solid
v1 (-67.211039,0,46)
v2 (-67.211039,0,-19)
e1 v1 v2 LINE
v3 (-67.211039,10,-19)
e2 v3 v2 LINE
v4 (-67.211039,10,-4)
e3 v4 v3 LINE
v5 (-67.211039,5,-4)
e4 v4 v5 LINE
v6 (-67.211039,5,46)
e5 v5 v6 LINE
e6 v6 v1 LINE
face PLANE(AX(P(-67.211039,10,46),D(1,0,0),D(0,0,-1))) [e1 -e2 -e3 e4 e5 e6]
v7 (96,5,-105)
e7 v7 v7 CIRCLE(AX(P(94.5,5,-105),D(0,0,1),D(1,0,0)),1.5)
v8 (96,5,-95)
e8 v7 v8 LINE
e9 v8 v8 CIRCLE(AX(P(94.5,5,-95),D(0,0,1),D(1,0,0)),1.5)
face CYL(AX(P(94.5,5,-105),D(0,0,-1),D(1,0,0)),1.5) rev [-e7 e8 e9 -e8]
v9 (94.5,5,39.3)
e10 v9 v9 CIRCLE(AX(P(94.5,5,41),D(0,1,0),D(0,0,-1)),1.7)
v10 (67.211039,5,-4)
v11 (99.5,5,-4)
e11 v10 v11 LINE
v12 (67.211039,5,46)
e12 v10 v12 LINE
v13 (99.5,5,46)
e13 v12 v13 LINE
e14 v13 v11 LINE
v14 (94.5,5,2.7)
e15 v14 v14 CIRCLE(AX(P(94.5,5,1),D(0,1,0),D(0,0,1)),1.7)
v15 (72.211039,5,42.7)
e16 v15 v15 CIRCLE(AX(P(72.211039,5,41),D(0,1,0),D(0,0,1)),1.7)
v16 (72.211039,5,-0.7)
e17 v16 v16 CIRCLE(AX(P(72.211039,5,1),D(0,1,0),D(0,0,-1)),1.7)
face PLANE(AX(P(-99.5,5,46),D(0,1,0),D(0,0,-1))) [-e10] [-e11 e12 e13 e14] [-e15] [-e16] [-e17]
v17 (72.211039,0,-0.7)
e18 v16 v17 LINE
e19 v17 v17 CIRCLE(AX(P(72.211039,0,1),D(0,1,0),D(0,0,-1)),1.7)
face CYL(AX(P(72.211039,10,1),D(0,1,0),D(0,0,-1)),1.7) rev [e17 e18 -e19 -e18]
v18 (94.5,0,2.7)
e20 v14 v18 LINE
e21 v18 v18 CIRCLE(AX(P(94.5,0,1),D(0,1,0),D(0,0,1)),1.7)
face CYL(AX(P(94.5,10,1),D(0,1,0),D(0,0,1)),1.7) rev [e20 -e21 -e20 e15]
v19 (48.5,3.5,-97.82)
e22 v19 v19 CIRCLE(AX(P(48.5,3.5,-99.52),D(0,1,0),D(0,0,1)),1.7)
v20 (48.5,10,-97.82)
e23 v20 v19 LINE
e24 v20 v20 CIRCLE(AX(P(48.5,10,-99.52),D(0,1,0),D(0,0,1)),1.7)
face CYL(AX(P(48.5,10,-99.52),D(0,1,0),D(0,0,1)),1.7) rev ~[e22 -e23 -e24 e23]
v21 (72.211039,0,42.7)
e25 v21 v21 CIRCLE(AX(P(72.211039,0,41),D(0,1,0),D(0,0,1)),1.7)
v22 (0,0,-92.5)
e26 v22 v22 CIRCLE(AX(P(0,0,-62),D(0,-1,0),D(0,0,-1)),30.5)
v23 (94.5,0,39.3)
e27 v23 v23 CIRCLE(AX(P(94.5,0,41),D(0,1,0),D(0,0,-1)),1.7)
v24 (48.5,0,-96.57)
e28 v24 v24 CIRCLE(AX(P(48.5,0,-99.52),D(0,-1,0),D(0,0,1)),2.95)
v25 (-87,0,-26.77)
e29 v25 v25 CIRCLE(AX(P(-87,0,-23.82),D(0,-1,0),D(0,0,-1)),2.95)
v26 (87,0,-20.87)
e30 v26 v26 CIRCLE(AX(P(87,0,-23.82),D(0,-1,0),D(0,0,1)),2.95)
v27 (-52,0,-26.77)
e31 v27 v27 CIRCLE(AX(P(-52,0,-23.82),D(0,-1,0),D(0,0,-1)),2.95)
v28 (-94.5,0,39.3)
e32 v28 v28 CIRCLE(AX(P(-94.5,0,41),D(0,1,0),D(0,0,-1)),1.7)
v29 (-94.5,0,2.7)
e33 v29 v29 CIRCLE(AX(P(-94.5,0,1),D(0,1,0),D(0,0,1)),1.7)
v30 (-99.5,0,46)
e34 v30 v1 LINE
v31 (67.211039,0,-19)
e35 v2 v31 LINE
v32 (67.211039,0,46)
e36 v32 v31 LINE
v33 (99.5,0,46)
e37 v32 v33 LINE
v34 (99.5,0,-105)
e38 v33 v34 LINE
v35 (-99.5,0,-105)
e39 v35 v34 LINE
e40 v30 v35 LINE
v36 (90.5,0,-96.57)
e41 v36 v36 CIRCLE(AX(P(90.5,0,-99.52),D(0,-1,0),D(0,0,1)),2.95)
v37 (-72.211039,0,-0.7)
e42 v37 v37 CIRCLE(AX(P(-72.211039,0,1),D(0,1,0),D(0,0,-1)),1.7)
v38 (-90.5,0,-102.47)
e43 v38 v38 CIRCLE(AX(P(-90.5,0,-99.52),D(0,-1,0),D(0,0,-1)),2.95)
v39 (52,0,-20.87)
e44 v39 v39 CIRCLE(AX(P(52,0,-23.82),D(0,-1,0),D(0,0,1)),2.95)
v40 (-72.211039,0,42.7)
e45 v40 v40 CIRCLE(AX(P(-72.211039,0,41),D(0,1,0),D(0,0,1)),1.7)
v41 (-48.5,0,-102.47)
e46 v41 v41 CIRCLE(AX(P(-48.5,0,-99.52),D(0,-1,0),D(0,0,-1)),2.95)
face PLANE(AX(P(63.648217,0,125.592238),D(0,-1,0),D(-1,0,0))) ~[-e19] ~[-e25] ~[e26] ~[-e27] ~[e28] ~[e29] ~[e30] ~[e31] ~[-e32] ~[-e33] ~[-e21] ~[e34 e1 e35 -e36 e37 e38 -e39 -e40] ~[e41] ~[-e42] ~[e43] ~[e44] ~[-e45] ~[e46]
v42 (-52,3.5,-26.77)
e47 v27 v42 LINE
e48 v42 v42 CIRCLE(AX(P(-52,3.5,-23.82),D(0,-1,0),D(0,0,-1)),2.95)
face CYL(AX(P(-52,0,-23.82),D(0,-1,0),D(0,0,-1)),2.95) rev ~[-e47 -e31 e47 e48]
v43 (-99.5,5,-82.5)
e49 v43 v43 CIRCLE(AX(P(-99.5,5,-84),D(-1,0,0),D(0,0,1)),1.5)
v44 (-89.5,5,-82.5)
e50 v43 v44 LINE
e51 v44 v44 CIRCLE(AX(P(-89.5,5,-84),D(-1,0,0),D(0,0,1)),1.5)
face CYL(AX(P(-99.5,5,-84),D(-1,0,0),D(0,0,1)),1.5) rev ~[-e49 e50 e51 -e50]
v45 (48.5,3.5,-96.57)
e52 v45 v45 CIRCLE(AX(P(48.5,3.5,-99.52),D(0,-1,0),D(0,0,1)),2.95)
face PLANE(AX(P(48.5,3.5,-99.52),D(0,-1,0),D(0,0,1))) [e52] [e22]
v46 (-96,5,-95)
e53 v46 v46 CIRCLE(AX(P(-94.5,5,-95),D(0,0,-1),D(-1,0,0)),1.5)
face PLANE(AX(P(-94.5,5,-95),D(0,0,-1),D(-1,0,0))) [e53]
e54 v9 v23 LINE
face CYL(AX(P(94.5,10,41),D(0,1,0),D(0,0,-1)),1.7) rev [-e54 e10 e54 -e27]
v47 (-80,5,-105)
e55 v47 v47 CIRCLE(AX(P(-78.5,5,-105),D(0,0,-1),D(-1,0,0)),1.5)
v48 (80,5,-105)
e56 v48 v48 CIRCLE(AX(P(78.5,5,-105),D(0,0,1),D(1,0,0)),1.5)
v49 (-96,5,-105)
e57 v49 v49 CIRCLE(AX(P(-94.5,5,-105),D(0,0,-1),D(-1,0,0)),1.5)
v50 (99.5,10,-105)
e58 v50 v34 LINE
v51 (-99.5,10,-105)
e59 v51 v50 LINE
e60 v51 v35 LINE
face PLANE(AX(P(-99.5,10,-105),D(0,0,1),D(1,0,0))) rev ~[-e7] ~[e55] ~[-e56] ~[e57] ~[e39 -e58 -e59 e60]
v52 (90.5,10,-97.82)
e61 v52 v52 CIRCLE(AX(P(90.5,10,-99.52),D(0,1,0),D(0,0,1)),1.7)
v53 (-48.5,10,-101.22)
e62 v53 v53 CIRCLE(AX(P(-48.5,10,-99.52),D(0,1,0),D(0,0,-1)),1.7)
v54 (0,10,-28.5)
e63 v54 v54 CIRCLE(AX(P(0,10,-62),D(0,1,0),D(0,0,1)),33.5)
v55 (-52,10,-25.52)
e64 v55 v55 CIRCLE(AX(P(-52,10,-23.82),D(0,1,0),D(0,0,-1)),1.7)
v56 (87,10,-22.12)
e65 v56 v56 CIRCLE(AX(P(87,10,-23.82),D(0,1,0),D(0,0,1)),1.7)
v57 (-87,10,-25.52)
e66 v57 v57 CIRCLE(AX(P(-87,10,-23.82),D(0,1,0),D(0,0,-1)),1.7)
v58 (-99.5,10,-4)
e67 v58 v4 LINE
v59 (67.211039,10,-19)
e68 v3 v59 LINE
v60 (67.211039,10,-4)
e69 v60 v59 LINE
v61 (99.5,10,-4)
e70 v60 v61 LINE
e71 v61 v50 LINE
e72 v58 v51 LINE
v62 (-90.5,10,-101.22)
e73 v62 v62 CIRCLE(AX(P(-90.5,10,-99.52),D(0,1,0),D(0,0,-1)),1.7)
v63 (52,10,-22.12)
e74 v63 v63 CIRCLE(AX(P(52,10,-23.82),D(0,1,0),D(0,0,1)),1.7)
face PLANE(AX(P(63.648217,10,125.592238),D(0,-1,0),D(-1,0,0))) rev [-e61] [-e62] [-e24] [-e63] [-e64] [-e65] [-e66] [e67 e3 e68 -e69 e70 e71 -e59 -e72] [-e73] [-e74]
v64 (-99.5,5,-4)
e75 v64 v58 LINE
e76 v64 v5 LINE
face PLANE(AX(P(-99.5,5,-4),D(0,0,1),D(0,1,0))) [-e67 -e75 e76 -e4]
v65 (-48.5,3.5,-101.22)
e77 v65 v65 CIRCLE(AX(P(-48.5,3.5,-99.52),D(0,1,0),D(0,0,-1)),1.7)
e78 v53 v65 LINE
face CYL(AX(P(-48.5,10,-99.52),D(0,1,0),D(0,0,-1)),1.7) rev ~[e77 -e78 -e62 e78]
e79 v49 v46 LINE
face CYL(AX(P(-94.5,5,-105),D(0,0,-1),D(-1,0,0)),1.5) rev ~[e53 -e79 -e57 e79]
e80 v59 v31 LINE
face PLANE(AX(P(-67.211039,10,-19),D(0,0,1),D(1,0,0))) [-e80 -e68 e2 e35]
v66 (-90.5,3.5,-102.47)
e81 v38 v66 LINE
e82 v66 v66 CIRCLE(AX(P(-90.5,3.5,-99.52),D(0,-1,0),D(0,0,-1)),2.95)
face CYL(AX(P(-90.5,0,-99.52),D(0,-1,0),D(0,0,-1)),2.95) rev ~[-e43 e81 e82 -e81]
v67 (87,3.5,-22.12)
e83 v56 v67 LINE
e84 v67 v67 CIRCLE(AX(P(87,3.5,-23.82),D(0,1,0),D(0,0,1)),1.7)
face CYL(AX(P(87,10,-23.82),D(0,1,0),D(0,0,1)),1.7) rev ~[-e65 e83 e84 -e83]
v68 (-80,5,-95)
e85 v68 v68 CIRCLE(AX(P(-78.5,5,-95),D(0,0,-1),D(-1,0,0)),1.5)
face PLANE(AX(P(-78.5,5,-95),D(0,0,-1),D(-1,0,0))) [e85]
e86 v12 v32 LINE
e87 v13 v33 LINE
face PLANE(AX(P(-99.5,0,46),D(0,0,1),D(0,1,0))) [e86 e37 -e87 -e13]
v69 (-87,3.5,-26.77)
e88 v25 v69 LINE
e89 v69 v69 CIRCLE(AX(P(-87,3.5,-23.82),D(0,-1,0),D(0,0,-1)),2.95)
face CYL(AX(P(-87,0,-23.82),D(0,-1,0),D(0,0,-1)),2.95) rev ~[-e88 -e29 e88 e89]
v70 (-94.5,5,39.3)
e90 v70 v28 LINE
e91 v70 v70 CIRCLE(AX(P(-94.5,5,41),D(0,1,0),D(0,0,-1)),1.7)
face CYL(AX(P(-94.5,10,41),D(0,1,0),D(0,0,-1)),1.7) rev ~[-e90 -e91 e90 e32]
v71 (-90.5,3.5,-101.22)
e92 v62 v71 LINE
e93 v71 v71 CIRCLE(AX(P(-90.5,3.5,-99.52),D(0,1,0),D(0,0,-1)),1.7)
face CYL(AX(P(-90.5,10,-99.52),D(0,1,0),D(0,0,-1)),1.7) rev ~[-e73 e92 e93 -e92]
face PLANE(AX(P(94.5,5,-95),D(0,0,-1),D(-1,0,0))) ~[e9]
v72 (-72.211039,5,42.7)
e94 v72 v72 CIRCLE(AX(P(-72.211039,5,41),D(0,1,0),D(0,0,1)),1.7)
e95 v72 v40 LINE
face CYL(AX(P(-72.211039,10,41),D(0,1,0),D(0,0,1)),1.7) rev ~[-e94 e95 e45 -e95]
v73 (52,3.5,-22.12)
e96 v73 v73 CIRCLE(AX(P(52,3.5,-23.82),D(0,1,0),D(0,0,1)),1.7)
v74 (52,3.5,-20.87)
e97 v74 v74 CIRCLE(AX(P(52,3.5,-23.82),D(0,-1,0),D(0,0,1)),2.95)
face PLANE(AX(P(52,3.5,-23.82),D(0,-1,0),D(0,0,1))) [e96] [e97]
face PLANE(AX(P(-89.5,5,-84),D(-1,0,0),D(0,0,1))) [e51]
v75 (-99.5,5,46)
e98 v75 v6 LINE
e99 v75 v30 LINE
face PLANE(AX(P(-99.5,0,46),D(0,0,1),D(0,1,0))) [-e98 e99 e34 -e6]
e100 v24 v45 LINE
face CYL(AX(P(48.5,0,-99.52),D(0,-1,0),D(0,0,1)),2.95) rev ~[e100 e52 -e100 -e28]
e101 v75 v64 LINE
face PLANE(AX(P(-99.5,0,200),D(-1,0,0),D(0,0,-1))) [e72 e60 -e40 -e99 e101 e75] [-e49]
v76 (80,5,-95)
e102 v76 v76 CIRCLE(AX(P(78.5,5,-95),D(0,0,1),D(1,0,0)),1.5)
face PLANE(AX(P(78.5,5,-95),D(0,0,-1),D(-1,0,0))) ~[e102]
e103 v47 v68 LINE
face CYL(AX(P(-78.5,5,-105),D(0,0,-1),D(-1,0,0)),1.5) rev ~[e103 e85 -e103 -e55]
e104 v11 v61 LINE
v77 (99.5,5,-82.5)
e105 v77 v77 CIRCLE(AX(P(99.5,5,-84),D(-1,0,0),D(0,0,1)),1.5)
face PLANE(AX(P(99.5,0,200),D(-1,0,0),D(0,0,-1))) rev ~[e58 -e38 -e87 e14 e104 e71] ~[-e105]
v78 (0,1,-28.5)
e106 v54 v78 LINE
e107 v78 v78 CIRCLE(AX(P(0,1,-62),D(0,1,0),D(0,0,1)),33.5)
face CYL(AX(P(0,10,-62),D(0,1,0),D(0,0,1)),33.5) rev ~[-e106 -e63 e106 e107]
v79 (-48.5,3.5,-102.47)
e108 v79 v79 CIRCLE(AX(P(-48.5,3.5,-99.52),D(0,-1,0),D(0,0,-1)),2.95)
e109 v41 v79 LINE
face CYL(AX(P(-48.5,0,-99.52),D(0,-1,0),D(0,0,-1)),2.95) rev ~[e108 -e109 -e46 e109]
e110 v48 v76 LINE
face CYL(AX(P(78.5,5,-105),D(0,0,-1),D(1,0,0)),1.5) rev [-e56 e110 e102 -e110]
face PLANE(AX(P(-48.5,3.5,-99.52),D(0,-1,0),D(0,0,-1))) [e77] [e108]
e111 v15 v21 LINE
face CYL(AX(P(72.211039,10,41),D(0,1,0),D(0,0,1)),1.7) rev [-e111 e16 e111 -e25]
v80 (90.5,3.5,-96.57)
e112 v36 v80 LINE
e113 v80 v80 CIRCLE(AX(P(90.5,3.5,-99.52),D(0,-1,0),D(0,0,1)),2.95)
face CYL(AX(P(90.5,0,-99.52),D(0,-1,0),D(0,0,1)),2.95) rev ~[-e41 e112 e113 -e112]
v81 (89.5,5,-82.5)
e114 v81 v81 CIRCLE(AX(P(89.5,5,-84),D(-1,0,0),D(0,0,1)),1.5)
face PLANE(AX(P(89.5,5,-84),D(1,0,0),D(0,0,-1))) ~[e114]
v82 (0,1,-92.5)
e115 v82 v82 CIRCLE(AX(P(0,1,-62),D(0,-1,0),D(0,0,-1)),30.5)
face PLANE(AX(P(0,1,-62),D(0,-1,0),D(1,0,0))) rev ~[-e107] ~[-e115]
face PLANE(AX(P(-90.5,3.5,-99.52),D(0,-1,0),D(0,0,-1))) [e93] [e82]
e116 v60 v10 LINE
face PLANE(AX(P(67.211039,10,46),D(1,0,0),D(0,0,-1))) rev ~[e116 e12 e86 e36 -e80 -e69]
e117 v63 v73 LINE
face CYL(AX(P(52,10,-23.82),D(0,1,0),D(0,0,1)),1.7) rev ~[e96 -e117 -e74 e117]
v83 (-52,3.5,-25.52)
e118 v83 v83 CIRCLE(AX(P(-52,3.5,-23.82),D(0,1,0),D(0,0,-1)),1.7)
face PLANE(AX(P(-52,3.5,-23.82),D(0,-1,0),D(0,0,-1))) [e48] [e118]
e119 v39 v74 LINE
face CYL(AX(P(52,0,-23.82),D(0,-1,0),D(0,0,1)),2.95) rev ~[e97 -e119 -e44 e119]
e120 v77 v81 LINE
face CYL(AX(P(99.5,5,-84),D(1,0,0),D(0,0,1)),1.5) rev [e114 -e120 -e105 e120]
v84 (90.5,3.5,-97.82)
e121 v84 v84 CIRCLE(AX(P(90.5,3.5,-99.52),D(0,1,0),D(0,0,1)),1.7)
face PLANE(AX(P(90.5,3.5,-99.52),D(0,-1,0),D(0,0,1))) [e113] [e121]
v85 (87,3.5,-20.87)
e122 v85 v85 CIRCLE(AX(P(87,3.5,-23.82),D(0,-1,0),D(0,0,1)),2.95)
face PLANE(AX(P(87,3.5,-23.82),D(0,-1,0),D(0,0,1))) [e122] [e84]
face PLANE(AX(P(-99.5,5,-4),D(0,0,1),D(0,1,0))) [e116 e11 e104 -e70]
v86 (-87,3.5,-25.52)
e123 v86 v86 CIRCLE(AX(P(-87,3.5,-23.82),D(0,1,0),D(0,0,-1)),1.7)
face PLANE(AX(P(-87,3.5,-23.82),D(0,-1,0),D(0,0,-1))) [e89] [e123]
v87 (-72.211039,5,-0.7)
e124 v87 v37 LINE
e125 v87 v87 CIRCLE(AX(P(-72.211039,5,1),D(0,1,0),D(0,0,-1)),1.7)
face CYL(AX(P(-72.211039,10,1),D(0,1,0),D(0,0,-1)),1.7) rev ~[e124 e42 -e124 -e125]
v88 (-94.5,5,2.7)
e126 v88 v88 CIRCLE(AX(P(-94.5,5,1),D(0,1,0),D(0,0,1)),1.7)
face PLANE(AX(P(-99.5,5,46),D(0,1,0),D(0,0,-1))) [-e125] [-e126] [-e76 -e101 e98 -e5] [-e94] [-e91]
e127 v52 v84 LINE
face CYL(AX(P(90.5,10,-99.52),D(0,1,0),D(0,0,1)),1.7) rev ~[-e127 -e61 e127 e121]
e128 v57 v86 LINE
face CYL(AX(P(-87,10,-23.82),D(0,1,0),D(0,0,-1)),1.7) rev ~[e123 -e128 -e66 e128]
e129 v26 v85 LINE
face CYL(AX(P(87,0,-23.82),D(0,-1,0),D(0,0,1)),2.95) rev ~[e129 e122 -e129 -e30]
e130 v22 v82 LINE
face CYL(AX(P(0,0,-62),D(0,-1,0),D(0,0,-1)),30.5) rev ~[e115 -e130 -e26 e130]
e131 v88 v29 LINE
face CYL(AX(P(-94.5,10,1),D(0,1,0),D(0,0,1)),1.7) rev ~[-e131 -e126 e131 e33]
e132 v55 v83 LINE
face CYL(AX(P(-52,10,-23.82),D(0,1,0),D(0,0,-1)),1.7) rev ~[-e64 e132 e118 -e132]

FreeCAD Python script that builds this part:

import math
import FreeCAD as App
import Part
import Sketcher
from FreeCAD import Vector
Q = App.Units.Quantity


def add_polygon(sketch, points):
    """Adds a closed chain of lines whose ends are joined by coincident constraints."""
    first, n = sketch.GeometryCount, len(points)
    for a, b in zip(points, points[1:] + points[:1]):
        sketch.addGeometry(Part.LineSegment(App.Vector(*a, 0), App.Vector(*b, 0)), False)
    for i in range(n):
        sketch.addConstraint(Sketcher.Constraint("Coincident", first + i, 2, first + (i + 1) % n, 1))

doc = App.newDocument("Part")
body = doc.addObject("PartDesign::Body", "Body")

# Sketch on XZ plane
sketch1 = doc.addObject("Sketcher::SketchObject", "Sketch")
body.addObject(sketch1)
sketch1.AttachmentSupport = (doc.XZ_Plane, [""])
sketch1.MapMode = "FlatFace"
add_polygon(sketch1, [(-100, -200), (-100, 200), (100, 200), (100, -200)])  # lines 0-3
sketch1.addConstraint([
    Sketcher.Constraint("Vertical", 0),
    Sketcher.Constraint("Horizontal", 1),
    Sketcher.Constraint("Vertical", 2),
    Sketcher.Constraint("Horizontal", 3),
    Sketcher.Constraint("Symmetric", 0, 2, 2, 2, -1, 1),
    Sketcher.Constraint("DistanceX", 1, 1, 1, 2, 199.0),
    Sketcher.Constraint("DistanceY", 0, 1, 0, 2, 400.0),
])
pad1 = doc.addObject("PartDesign::Pad", "Pad")
body.addObject(pad1)
pad1.Profile = sketch1
pad1.Length = 10
pad1.Reversed = True

# Sketch on XZ plane
sketch2 = doc.addObject("Sketcher::SketchObject", "Sketch001")
body.addObject(sketch2)
sketch2.AttachmentSupport = (doc.XZ_Plane, [""])
sketch2.MapMode = "FlatFace"
sketch2.AttachmentOffset = App.Placement(Vector(0, 0, -10), App.Rotation())
add_polygon(sketch2, [(18, 200), (100, 200), (100, 46)])  # lines 0-2
add_polygon(sketch2, [(-18, 200), (-100, 46), (-100, 200)])  # lines 3-5
add_polygon(sketch2, [(-100, -200), (-100, -105), (100, -105), (100, -200)])  # lines 6-9
add_polygon(sketch2, [(67, 46), (-67, 46), (-3, 168), (3, 168)])  # lines 10-13
sketch2.addConstraint([
    Sketcher.Constraint("Horizontal", 0),
    Sketcher.Constraint("Vertical", 1),
    Sketcher.Constraint("Vertical", 4),
    Sketcher.Constraint("Horizontal", 5),
    Sketcher.Constraint("Vertical", 6),
    Sketcher.Constraint("Horizontal", 7),
    Sketcher.Constraint("Vertical", 8),
    Sketcher.Constraint("Horizontal", 9),
    Sketcher.Constraint("Horizontal", 10),
    Sketcher.Constraint("Horizontal", 12),
    Sketcher.Constraint("Symmetric", 4, 2, 8, 2, -1, 1),
    Sketcher.Constraint("Symmetric", 0, 2, 9, 2, -1, 1),
    Sketcher.Constraint("Symmetric", 1, 2, 3, 2, -2),
    Sketcher.Constraint("Parallel", 3, 11),
    Sketcher.Constraint("Parallel", 2, 13),
    Sketcher.Constraint("Horizontal", 3, 2, 10, 2),
    Sketcher.Constraint("Equal", 0, 5),
    Sketcher.Constraint("DistanceX", 7, 1, 7, 2, 199.0),
    Sketcher.Constraint("DistanceY", 1, 2, 1, 1, 154.0),
    Sketcher.Constraint("DistanceY", 6, 1, 6, 2, 95.0),
    Sketcher.Constraint("DistanceX", 0, 1, 0, 2, 81.5),
    Sketcher.Constraint("DistanceY", -1, 1, 0, 2, 200.0),
    Sketcher.Constraint("DistanceY", -1, 1, 11, 2, 168.0),
    Sketcher.Constraint("DistanceX", 10, 2, 10, 1, 134.422078),
    Sketcher.Constraint("DistanceX", 10, 2, -1, 1, 67.211039),
])
pocket1 = doc.addObject("PartDesign::Pocket", "Pocket")
body.addObject(pocket1)
pocket1.Profile = sketch2
pocket1.Length = 10
pocket1.Reversed = True

# Sketch on XZ plane
sketch3 = doc.addObject("Sketcher::SketchObject", "Sketch002")
body.addObject(sketch3)
sketch3.AttachmentSupport = (doc.XZ_Plane, [""])
sketch3.MapMode = "FlatFace"
sketch3.AttachmentOffset = App.Placement(Vector(0, 0, -10), App.Rotation())
sketch3.addGeometry([
    Part.Circle(Vector(-11, 195, 0), Vector(0, 0, 1), 1.7),
    Part.Circle(Vector(-11, 178.2, 0), Vector(0, 0, 1), 1.7),
    Part.Circle(Vector(11, 195, 0), Vector(0, 0, 1), 1.7),
    Part.Circle(Vector(11, 178.2, 0), Vector(0, 0, 1), 1.7),
], False)
sketch3.addConstraint([
    Sketcher.Constraint("Equal", 0, 1),
    Sketcher.Constraint("Equal", 1, 2),
    Sketcher.Constraint("Equal", 2, 3),
    Sketcher.Constraint("Symmetric", 0, 3, 2, 3, -2),
    Sketcher.Constraint("Symmetric", 1, 3, 3, 3, -2),
    Sketcher.Constraint("Vertical", 0, 3, 1, 3),
    Sketcher.Constraint("Diameter", 0, 3.4),
    Sketcher.Constraint("DistanceX", 0, 3, -1, 1, 11.0),
    Sketcher.Constraint("DistanceY", -1, 1, 0, 3, 195.0),
    Sketcher.Constraint("DistanceY", -1, 1, 1, 3, 178.18),
])
pocket2 = doc.addObject("PartDesign::Pocket", "Pocket001")
body.addObject(pocket2)
pocket2.Profile = sketch3
pocket2.Type = "ThroughAll"
pocket2.Reversed = True

# Sketch on XZ plane
sketch4 = doc.addObject("Sketcher::SketchObject", "Sketch003")
body.addObject(sketch4)
sketch4.AttachmentSupport = (doc.XZ_Plane, [""])
sketch4.MapMode = "FlatFace"
add_polygon(sketch4, [(-8.1, 196.7), (-11, 198.4), (-13.9, 196.7), (-13.9, 193.3), (-11, 191.6), (-8.1, 193.3)])  # lines 0-5
add_polygon(sketch4, [(11, 198.4), (8.1, 196.7), (8.1, 193.3), (11, 191.6), (13.9, 193.3), (13.9, 196.7)])  # lines 6-11
add_polygon(sketch4, [(-8.1, 176.5), (-8.1, 179.9), (-11, 181.6), (-13.9, 179.9), (-13.9, 176.5), (-11, 174.8)])  # lines 12-17
add_polygon(sketch4, [(8.1, 179.9), (8.1, 176.5), (11, 174.8), (13.9, 176.5), (13.9, 179.9), (11, 181.6)])  # lines 18-23
sketch4.addConstraint([
    Sketcher.Constraint("Vertical", 2),
    Sketcher.Constraint("Vertical", 5),
    Sketcher.Constraint("Vertical", 7),
    Sketcher.Constraint("Vertical", 10),
    Sketcher.Constraint("Vertical", 12),
    Sketcher.Constraint("Vertical", 15),
    Sketcher.Constraint("Vertical", 18),
    Sketcher.Constraint("Vertical", 21),
    Sketcher.Constraint("Symmetric", 5, 2, 6, 2, -2),
    Sketcher.Constraint("Symmetric", 3, 2, 8, 2, -2),
    Sketcher.Constraint("Symmetric", 2, 2, 9, 2, -2),
    Sketcher.Constraint("Symmetric", 0, 2, 11, 2, -2),
    Sketcher.Constraint("Symmetric", 17, 2, 18, 2, -2),
    Sketcher.Constraint("Symmetric", 16, 2, 19, 2, -2),
    Sketcher.Constraint("Symmetric", 15, 2, 20, 2, -2),
    Sketcher.Constraint("Symmetric", 13, 2, 22, 2, -2),
    Sketcher.Constraint("Parallel", 0, 3),
    Sketcher.Constraint("Parallel", 1, 4),
    Sketcher.Constraint("Parallel", 4, 6),
    Sketcher.Constraint("Parallel", 3, 8),
    Sketcher.Constraint("Parallel", 8, 11),
    Sketcher.Constraint("Parallel", 11, 13),
    Sketcher.Constraint("Parallel", 9, 14),
    Sketcher.Constraint("Parallel", 13, 16),
    Sketcher.Constraint("Parallel", 14, 17),
    Sketcher.Constraint("Parallel", 19, 22),
    Sketcher.Constraint("Parallel", 20, 23),
    Sketcher.Constraint("Horizontal", 2, 2, 4, 2),
    Sketcher.Constraint("Horizontal", 1, 2, 5, 2),
    Sketcher.Constraint("Horizontal", 12, 2, 14, 2),
    Sketcher.Constraint("Horizontal", 15, 2, 17, 2),
    Sketcher.Constraint("Vertical", 5, 2, 12, 2),
    Sketcher.Constraint("Vertical", 3, 2, 13, 2),
    Sketcher.Constraint("Equal", 10, 12),
    Sketcher.Constraint("Angle", 0, Q("150 deg")),
    Sketcher.Constraint("DistanceX", 0, 2, -1, 1, 11.0),
    Sketcher.Constraint("DistanceX", 2, 2, 4, 2, 5.9),
    Sketcher.Constraint("DistanceY", 12, 2, 5, 2, 16.82),
    Sketcher.Constraint("DistanceY", 2, 2, 2, 1, 3.406367),
    Sketcher.Constraint("DistanceY", -1, 1, 0, 2, 198.406367),
])
pocket3 = doc.addObject("PartDesign::Pocket", "Pocket002")
body.addObject(pocket3)
pocket3.Profile = sketch4
pocket3.Length = 4

# Sketch on XZ plane
sketch5 = doc.addObject("Sketcher::SketchObject", "Sketch004")
body.addObject(sketch5)
sketch5.AttachmentSupport = (doc.XZ_Plane, [""])
sketch5.MapMode = "FlatFace"
add_polygon(sketch5, [(-18, 190), (-18, 183), (18, 183), (18, 190)])  # lines 0-3
sketch5.addConstraint([
    Sketcher.Constraint("Vertical", 0),
    Sketcher.Constraint("Horizontal", 1),
    Sketcher.Constraint("Vertical", 2),
    Sketcher.Constraint("Horizontal", 3),
    Sketcher.Constraint("DistanceX", 1, 1, 1, 2, 35.0),
    Sketcher.Constraint("DistanceY", 0, 2, 0, 1, 7.0),
    Sketcher.Constraint("DistanceX", 0, 2, -1, 1, 17.5),
    Sketcher.Constraint("DistanceY", -1, 1, 0, 2, 183.09),
])
pocket4 = doc.addObject("PartDesign::Pocket", "Pocket003")
body.addObject(pocket4)
pocket4.Profile = sketch5
pocket4.Length = 5

# Sketch on YZ plane
sketch6 = doc.addObject("Sketcher::SketchObject", "Sketch005")
body.addObject(sketch6)
sketch6.AttachmentSupport = (doc.YZ_Plane, [""])
sketch6.MapMode = "FlatFace"
sketch6.AttachmentOffset = App.Placement(Vector(0, 0, 17.5), App.Rotation())
add_polygon(sketch6, [(8.5, 186.6), (5, 183.1), (5, 190.1)])  # lines 0-2
sketch6.addConstraint([
    Sketcher.Constraint("Vertical", 1),
    Sketcher.Constraint("Perpendicular", 0, 2),
    Sketcher.Constraint("Equal", 0, 2),
    Sketcher.Constraint("DistanceY", 1, 1, 1, 2, 7.0),
    Sketcher.Constraint("DistanceX", -1, 1, 0, 2, 5.0),
    Sketcher.Constraint("DistanceY", -1, 1, 0, 2, 183.09),
])
pocket5 = doc.addObject("PartDesign::Pocket", "Pocket004")
body.addObject(pocket5)
pocket5.Profile = sketch6
pocket5.Length = 35

# Sketch on XZ plane
sketch7 = doc.addObject("Sketcher::SketchObject", "Sketch006")
body.addObject(sketch7)
sketch7.AttachmentSupport = (doc.XZ_Plane, [""])
sketch7.MapMode = "FlatFace"
sketch7.AttachmentOffset = App.Placement(Vector(0, 0, -10), App.Rotation())
sketch7.addGeometry([
    Part.Circle(Vector(90.5, -99.5, 0), Vector(0, 0, 1), 1.7),  # 0
    Part.Circle(Vector(48.5, -99.5, 0), Vector(0, 0, 1), 1.7),  # 1
    Part.Circle(Vector(-48.5, -99.5, 0), Vector(0, 0, 1), 1.7),  # 2
    Part.Circle(Vector(-90.5, -99.5, 0), Vector(0, 0, 1), 1.7),  # 3
    Part.Circle(Vector(87, -23.8, 0), Vector(0, 0, 1), 1.7),  # 4
    Part.Circle(Vector(52, -23.8, 0), Vector(0, 0, 1), 1.7),  # 5
    Part.Circle(Vector(-87, -23.8, 0), Vector(0, 0, 1), 1.7),  # 6
    Part.Circle(Vector(-52, -23.8, 0), Vector(0, 0, 1), 1.7),  # 7
], False)
sketch7.addConstraint([
    Sketcher.Constraint("Equal", 0, 1),
    Sketcher.Constraint("Equal", 1, 2),
    Sketcher.Constraint("Equal", 2, 3),
    Sketcher.Constraint("Equal", 3, 4),
    Sketcher.Constraint("Equal", 4, 5),
    Sketcher.Constraint("Equal", 5, 6),
    Sketcher.Constraint("Equal", 6, 7),
    Sketcher.Constraint("Symmetric", 1, 3, 2, 3, -2),
    Sketcher.Constraint("Symmetric", 0, 3, 3, 3, -2),
    Sketcher.Constraint("Symmetric", 4, 3, 6, 3, -2),
    Sketcher.Constraint("Symmetric", 5, 3, 7, 3, -2),
    Sketcher.Constraint("Horizontal", 0, 3, 1, 3),
    Sketcher.Constraint("Horizontal", 4, 3, 5, 3),
    Sketcher.Constraint("Diameter", 0, 3.4),
    Sketcher.Constraint("DistanceX", -1, 1, 4, 3, 87.0),
    Sketcher.Constraint("DistanceX", -1, 1, 5, 3, 52.0),
    Sketcher.Constraint("DistanceX", 1, 3, 0, 3, 42.0),
    Sketcher.Constraint("DistanceX", 2, 3, 1, 3, 97.0),
    Sketcher.Constraint("DistanceY", 0, 3, 4, 3, 75.7),
    Sketcher.Constraint("DistanceY", 0, 3, -1, 1, 99.52),
])
pocket6 = doc.addObject("PartDesign::Pocket", "Pocket005")
body.addObject(pocket6)
pocket6.Profile = sketch7
pocket6.Type = "ThroughAll"
pocket6.Reversed = True

# Sketch on XZ plane
sketch8 = doc.addObject("Sketcher::SketchObject", "Sketch007")
body.addObject(sketch8)
sketch8.AttachmentSupport = (doc.XZ_Plane, [""])
sketch8.MapMode = "FlatFace"
sketch8.AttachmentOffset = App.Placement(Vector(0, 0, -10), App.Rotation())
add_polygon(sketch8, [(-67, -19), (-67, 46), (67, 46), (67, -19)])  # lines 0-3
sketch8.addConstraint([
    Sketcher.Constraint("Vertical", 0),
    Sketcher.Constraint("Horizontal", 1),
    Sketcher.Constraint("Vertical", 2),
    Sketcher.Constraint("Horizontal", 3),
    Sketcher.Constraint("DistanceY", 0, 1, 0, 2, 65.0),
    Sketcher.Constraint("DistanceY", -1, 1, 0, 2, 46.0),
    Sketcher.Constraint("DistanceX", 1, 1, 1, 2, 134.422078),
    Sketcher.Constraint("DistanceX", 0, 2, -1, 1, 67.211039),
])
pocket7 = doc.addObject("PartDesign::Pocket", "Pocket006")
body.addObject(pocket7)
pocket7.Profile = sketch8
pocket7.Type = "ThroughAll"
pocket7.Reversed = True

# Sketch on XZ plane
sketch9 = doc.addObject("Sketcher::SketchObject", "Sketch008")
body.addObject(sketch9)
sketch9.AttachmentSupport = (doc.XZ_Plane, [""])
sketch9.MapMode = "FlatFace"
sketch9.AttachmentOffset = App.Placement(Vector(0, 0, -10), App.Rotation())
sketch9.addGeometry([
    Part.LineSegment(Vector(-3, 168, 0), Vector(-67, 46, 0)),
    Part.ArcOfCircle(Part.Circle(Vector(60, 57, 0), Vector(0, 0, 1), 128), math.radians(119), math.radians(185)),
], False)
sketch9.addConstraint([
    Sketcher.Constraint("Coincident", 0, 1, 1, 1),
    Sketcher.Constraint("Coincident", 1, 2, 0, 2),
    Sketcher.Constraint("DistanceY", -1, 1, 0, 1, 168.0),
    Sketcher.Constraint("DistanceY", -1, 1, 1, 2, 46.0),
    Sketcher.Constraint("Radius", 1, 127.738656),
    Sketcher.Constraint("DistanceX", -1, 1, 1, 3, 60.076909),
    Sketcher.Constraint("DistanceX", 1, 2, -1, 1, 67.211039),
])
pocket8 = doc.addObject("PartDesign::Pocket", "Pocket007")
body.addObject(pocket8)
pocket8.Profile = sketch9
pocket8.Type = "ThroughAll"
pocket8.Reversed = True

# Sketch on XZ plane
sketch10 = doc.addObject("Sketcher::SketchObject", "Sketch009")
body.addObject(sketch10)
sketch10.AttachmentSupport = (doc.XZ_Plane, [""])
sketch10.MapMode = "FlatFace"
sketch10.AttachmentOffset = App.Placement(Vector(0, 0, -10), App.Rotation())
sketch10.addGeometry([
    Part.LineSegment(Vector(-18, 200, 0), Vector(-100, 46, 0)),
    Part.ArcOfCircle(Part.Circle(Vector(114, 31, 0), Vector(0, 0, 1), 214), math.radians(128), math.radians(176)),
], False)
sketch10.addConstraint([
    Sketcher.Constraint("Coincident", 0, 1, 1, 1),
    Sketcher.Constraint("Coincident", 1, 2, 0, 2),
    Sketcher.Constraint("DistanceX", 0, 1, -1, 1, 18.0),
    Sketcher.Constraint("DistanceY", -1, 1, 0, 1, 200.0),
    Sketcher.Constraint("DistanceY", -1, 1, 1, 2, 46.0),
    Sketcher.Constraint("DistanceX", 1, 2, -1, 1, 99.5),
    Sketcher.Constraint("Radius", 1, 214.4465),
])
pad2 = doc.addObject("PartDesign::Pad", "Pad001")
body.addObject(pad2)
pad2.Profile = sketch10
pad2.Length = 10
doc.recompute()

mirrored = doc.addObject("PartDesign::Mirrored", "Mirrored")
body.addObject(mirrored)
mirrored.Originals = [pocket8, pad2]
mirrored.MirrorPlane = (doc.YZ_Plane, [""])
body.Tip = mirrored

# Sketch on XZ plane
sketch11 = doc.addObject("Sketcher::SketchObject", "Sketch010")
body.addObject(sketch11)
sketch11.AttachmentSupport = (doc.XZ_Plane, [""])
sketch11.MapMode = "FlatFace"
sketch11.AttachmentOffset = App.Placement(Vector(0, 0, -10), App.Rotation())
sketch11.addGeometry([
    Part.Circle(Vector(-94.5, 1, 0), Vector(0, 0, 1), 1.7),
    Part.Circle(Vector(-72.2, 1, 0), Vector(0, 0, 1), 1.7),
    Part.Circle(Vector(-72.2, 41, 0), Vector(0, 0, 1), 1.7),
    Part.Circle(Vector(-94.5, 41, 0), Vector(0, 0, 1), 1.7),
], False)
sketch11.addConstraint([
    Sketcher.Constraint("Equal", 0, 1),
    Sketcher.Constraint("Equal", 1, 2),
    Sketcher.Constraint("Equal", 2, 3),
    Sketcher.Constraint("Horizontal", 0, 3, 1, 3),
    Sketcher.Constraint("Horizontal", 2, 3, 3, 3),
    Sketcher.Constraint("Vertical", 1, 3, 2, 3),
    Sketcher.Constraint("Vertical", 0, 3, 3, 3),
    Sketcher.Constraint("Diameter", 0, 3.4),
    Sketcher.Constraint("DistanceY", -1, 1, 0, 3, 1.0),
    Sketcher.Constraint("DistanceY", -1, 1, 2, 3, 41.0),
    Sketcher.Constraint("DistanceX", 0, 3, -1, 1, 94.5),
    Sketcher.Constraint("DistanceX", 1, 3, -1, 1, 72.211039),
])
pocket9 = doc.addObject("PartDesign::Pocket", "Pocket008")
body.addObject(pocket9)
pocket9.Profile = sketch11
pocket9.Type = "ThroughAll"
pocket9.Reversed = True
doc.recompute()

mirrored2 = doc.addObject("PartDesign::Mirrored", "Mirrored001")
body.addObject(mirrored2)
mirrored2.Originals = [pocket9]
mirrored2.MirrorPlane = (doc.YZ_Plane, [""])
body.Tip = mirrored2

# Sketch on YZ plane
sketch12 = doc.addObject("Sketcher::SketchObject", "Sketch011")
body.addObject(sketch12)
sketch12.AttachmentSupport = (doc.YZ_Plane, [""])
sketch12.MapMode = "FlatFace"
sketch12.AttachmentOffset = App.Placement(Vector(0, 0, -99.5), App.Rotation())
add_polygon(sketch12, [(13, -4), (5, -4), (5, 46), (0, 46), (-60, 91), (-41, 243), (83, 201)])  # lines 0-6
sketch12.addConstraint([
    Sketcher.Constraint("Horizontal", 0),
    Sketcher.Constraint("Vertical", 1),
    Sketcher.Constraint("Horizontal", 2),
    Sketcher.Constraint("PointOnObject", 2, 2, -2),
    Sketcher.Constraint("DistanceX", 2, 2, 2, 1, 5.0),
    Sketcher.Constraint("DistanceY", 1, 1, 1, 2, 50.0),
    Sketcher.Constraint("DistanceY", 0, 2, -1, 1, 4.0),
    Sketcher.Constraint("Distance", 3, 75.372722),
    Sketcher.Constraint("Distance", 5, 130.626732),
    Sketcher.Constraint("Distance", 6, 216.144279),
    Sketcher.Constraint("DistanceX", 0, 2, 0, 1, 8.101487),
    Sketcher.Constraint("DistanceX", 4, 2, -1, 1, 41.037631),
    Sketcher.Constraint("DistanceX", 3, 2, 4, 2, 19.247151),
    Sketcher.Constraint("DistanceY", 3, 2, 4, 2, 151.755729),
])
pocket10 = doc.addObject("PartDesign::Pocket", "Pocket009")
body.addObject(pocket10)
pocket10.Profile = sketch12
pocket10.Type = "ThroughAll"
pocket10.Reversed = True

# Sketch on XZ plane
sketch13 = doc.addObject("Sketcher::SketchObject", "Sketch012")
body.addObject(sketch13)
sketch13.AttachmentSupport = (doc.XZ_Plane, [""])
sketch13.MapMode = "FlatFace"
sketch13.AttachmentOffset = App.Placement(Vector(0, 0, -10), App.Rotation())
sketch13.addGeometry(Part.Circle(Vector(0, -62, 0), Vector(0, 0, 1), 34), False)
sketch13.addConstraint([
    Sketcher.Constraint("PointOnObject", 0, 3, -2),
    Sketcher.Constraint("Diameter", 0, 67.0),
    Sketcher.Constraint("DistanceY", 0, 3, -1, 1, 62.0),
])
pocket11 = doc.addObject("PartDesign::Pocket", "Pocket010")
body.addObject(pocket11)
pocket11.Profile = sketch13
pocket11.Type = "ThroughAll"
pocket11.Reversed = True

# Sketch on XZ plane
sketch14 = doc.addObject("Sketcher::SketchObject", "Sketch013")
body.addObject(sketch14)
sketch14.AttachmentSupport = (doc.XZ_Plane, [""])
sketch14.MapMode = "FlatFace"
sketch14.addGeometry([
    Part.Circle(Vector(0, -62, 0), Vector(0, 0, 1), 36),
    Part.Circle(Vector(0, -62, 0), Vector(0, 0, 1), 30),
], False)
sketch14.addConstraint([
    Sketcher.Constraint("Coincident", 1, 3, 0, 3),
    Sketcher.Constraint("PointOnObject", 0, 3, -2),
    Sketcher.Constraint("Diameter", 1, 61.0),
    Sketcher.Constraint("DistanceY", 0, 3, -1, 1, 62.0),
    Sketcher.Constraint("Diameter", 0, 72.012512),
])
pad3 = doc.addObject("PartDesign::Pad", "Pad002")
body.addObject(pad3)
pad3.Profile = sketch14
pad3.Length = 1
pad3.Reversed = True

# Sketch on YZ plane
sketch15 = doc.addObject("Sketcher::SketchObject", "Sketch014")
body.addObject(sketch15)
sketch15.AttachmentSupport = (doc.YZ_Plane, [""])
sketch15.MapMode = "FlatFace"
sketch15.AttachmentOffset = App.Placement(Vector(0, 0, -99.5), App.Rotation())
sketch15.addGeometry(Part.Circle(Vector(5, -84, 0), Vector(0, 0, 1), 1.5), False)
sketch15.addConstraint([
    Sketcher.Constraint("Diameter", 0, 3.0),
    Sketcher.Constraint("DistanceX", -1, 1, 0, 3, 5.0),
    Sketcher.Constraint("DistanceY", 0, 3, -1, 1, 84.0),
])
pocket12 = doc.addObject("PartDesign::Pocket", "Pocket011")
body.addObject(pocket12)
pocket12.Profile = sketch15
pocket12.Length = 10
pocket12.Reversed = True

# Sketch on XY plane
sketch16 = doc.addObject("Sketcher::SketchObject", "Sketch015")
body.addObject(sketch16)
sketch16.AttachmentSupport = (doc.XY_Plane, [""])
sketch16.MapMode = "FlatFace"
sketch16.AttachmentOffset = App.Placement(Vector(0, 0, -105), App.Rotation())
sketch16.addGeometry([
    Part.Circle(Vector(-94.5, 5, 0), Vector(0, 0, 1), 1.5),
    Part.Circle(Vector(-78.5, 5, 0), Vector(0, 0, 1), 1.5),
], False)
sketch16.addConstraint([
    Sketcher.Constraint("Equal", 0, 1),
    Sketcher.Constraint("Horizontal", 0, 3, 1, 3),
    Sketcher.Constraint("Diameter", 0, 3.0),
    Sketcher.Constraint("DistanceY", -1, 1, 0, 3, 5.0),
    Sketcher.Constraint("DistanceX", 0, 3, 1, 3, 16.0),
    Sketcher.Constraint("DistanceX", 0, 3, -1, 1, 94.5),
])
pocket13 = doc.addObject("PartDesign::Pocket", "Pocket012")
body.addObject(pocket13)
pocket13.Profile = sketch16
pocket13.Length = 10
pocket13.Reversed = True
doc.recompute()

mirrored3 = doc.addObject("PartDesign::Mirrored", "Mirrored002")
body.addObject(mirrored3)
mirrored3.Originals = [pocket12, pocket13]
mirrored3.MirrorPlane = (doc.YZ_Plane, [""])
body.Tip = mirrored3

# Sketch on XZ plane
sketch17 = doc.addObject("Sketcher::SketchObject", "Sketch016")
body.addObject(sketch17)
sketch17.AttachmentSupport = (doc.XZ_Plane, [""])
sketch17.MapMode = "FlatFace"
sketch17.addGeometry([
    Part.Circle(Vector(-90.5, -99.5, 0), Vector(0, 0, 1), 3),  # 0
    Part.Circle(Vector(-48.5, -99.5, 0), Vector(0, 0, 1), 3),  # 1
    Part.Circle(Vector(-87, -23.8, 0), Vector(0, 0, 1), 3),  # 2
    Part.Circle(Vector(-52, -23.8, 0), Vector(0, 0, 1), 3),  # 3
    Part.Circle(Vector(52, -23.8, 0), Vector(0, 0, 1), 3),  # 4
    Part.Circle(Vector(87, -23.8, 0), Vector(0, 0, 1), 3),  # 5
    Part.Circle(Vector(48.5, -99.5, 0), Vector(0, 0, 1), 3),  # 6
    Part.Circle(Vector(90.5, -99.5, 0), Vector(0, 0, 1), 3),  # 7
], False)
sketch17.addConstraint([
    Sketcher.Constraint("Equal", 0, 1),
    Sketcher.Constraint("Equal", 1, 2),
    Sketcher.Constraint("Equal", 2, 3),
    Sketcher.Constraint("Equal", 3, 4),
    Sketcher.Constraint("Equal", 4, 5),
    Sketcher.Constraint("Equal", 5, 6),
    Sketcher.Constraint("Equal", 6, 7),
    Sketcher.Constraint("Symmetric", 3, 3, 4, 3, -2),
    Sketcher.Constraint("Symmetric", 2, 3, 5, 3, -2),
    Sketcher.Constraint("Symmetric", 1, 3, 6, 3, -2),
    Sketcher.Constraint("Symmetric", 0, 3, 7, 3, -2),
    Sketcher.Constraint("Horizontal", 0, 3, 1, 3),
    Sketcher.Constraint("Horizontal", 2, 3, 3, 3),
    Sketcher.Constraint("Diameter", 0, 5.9),
    Sketcher.Constraint("DistanceX", 2, 3, -1, 1, 87.0),
    Sketcher.Constraint("DistanceX", 3, 3, -1, 1, 52.0),
    Sketcher.Constraint("DistanceX", 0, 3, 1, 3, 42.0),
    Sketcher.Constraint("DistanceX", 1, 3, 6, 3, 97.0),
    Sketcher.Constraint("DistanceY", 0, 3, 2, 3, 75.7),
    Sketcher.Constraint("DistanceY", 0, 3, -1, 1, 99.52),
])
pocket14 = doc.addObject("PartDesign::Pocket", "Pocket013")
body.addObject(pocket14)
pocket14.Profile = sketch17
pocket14.Length = 3.5

doc.recompute()
